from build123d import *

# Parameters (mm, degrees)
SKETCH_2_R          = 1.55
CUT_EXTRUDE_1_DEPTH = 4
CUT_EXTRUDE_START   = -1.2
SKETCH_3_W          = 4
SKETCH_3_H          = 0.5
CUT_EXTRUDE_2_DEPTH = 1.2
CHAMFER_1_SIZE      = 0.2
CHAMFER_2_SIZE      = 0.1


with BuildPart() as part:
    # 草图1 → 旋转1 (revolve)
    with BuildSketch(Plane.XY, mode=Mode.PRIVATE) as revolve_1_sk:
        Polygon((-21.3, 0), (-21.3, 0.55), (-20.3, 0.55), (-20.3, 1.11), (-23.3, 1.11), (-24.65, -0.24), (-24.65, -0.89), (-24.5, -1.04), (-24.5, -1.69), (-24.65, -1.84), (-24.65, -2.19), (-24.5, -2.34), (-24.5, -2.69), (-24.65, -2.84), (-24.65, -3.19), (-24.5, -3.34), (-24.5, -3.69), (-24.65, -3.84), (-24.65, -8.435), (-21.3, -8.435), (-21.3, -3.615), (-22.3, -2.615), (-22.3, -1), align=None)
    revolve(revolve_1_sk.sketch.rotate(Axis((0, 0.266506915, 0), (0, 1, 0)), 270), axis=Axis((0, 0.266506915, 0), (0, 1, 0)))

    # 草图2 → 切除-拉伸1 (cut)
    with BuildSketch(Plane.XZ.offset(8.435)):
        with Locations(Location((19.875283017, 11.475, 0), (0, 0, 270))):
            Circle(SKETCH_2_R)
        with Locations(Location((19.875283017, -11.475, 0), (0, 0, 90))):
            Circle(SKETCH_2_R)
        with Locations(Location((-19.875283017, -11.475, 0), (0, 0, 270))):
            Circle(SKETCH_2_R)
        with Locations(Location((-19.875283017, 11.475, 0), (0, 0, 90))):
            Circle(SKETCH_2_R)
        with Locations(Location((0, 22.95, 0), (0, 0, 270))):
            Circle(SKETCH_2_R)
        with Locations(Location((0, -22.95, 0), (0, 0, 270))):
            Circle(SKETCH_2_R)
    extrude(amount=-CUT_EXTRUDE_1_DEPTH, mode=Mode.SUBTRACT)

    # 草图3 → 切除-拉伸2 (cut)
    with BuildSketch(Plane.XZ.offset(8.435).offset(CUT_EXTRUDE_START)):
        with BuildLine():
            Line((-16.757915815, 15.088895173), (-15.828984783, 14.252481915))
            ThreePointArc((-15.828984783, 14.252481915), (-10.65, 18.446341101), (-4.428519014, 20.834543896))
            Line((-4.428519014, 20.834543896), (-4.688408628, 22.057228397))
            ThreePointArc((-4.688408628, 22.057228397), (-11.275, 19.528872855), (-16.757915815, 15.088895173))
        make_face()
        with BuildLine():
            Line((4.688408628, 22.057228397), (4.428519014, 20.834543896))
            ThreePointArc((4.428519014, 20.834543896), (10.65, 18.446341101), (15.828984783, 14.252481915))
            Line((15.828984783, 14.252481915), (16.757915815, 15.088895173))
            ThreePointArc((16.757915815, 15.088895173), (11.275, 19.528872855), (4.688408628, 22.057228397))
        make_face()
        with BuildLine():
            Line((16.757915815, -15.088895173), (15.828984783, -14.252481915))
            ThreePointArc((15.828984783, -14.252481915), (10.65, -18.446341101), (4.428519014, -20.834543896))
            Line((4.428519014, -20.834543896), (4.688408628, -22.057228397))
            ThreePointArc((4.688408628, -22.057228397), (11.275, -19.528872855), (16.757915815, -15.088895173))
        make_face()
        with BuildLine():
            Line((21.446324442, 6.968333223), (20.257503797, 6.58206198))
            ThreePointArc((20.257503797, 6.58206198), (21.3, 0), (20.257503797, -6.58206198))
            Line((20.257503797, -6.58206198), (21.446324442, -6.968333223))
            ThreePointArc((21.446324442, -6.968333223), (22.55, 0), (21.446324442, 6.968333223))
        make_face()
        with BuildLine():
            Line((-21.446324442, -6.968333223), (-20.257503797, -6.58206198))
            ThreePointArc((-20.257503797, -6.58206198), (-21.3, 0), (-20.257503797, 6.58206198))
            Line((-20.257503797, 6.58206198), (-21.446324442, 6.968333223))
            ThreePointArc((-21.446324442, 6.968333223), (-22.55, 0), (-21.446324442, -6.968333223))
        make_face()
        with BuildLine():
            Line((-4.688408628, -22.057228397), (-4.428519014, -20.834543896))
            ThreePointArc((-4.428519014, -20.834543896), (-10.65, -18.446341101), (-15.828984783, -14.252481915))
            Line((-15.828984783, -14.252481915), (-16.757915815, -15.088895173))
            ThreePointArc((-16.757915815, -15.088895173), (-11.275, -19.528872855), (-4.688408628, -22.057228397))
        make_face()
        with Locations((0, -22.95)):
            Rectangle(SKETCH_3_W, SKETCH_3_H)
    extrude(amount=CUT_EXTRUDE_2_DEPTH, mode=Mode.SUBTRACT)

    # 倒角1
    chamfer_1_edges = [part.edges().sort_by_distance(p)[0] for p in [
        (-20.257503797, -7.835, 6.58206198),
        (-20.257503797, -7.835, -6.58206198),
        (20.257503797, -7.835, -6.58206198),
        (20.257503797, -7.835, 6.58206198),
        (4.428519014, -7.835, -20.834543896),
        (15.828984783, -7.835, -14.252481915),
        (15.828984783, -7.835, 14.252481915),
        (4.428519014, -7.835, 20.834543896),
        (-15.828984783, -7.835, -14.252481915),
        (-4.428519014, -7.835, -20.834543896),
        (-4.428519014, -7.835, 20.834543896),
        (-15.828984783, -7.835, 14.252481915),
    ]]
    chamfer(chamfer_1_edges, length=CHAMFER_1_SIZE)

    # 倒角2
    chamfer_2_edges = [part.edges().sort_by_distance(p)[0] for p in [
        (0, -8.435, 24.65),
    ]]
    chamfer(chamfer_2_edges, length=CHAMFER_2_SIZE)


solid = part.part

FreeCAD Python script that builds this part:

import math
import FreeCAD as App
import Part
import Sketcher
Q = App.Units.Quantity


def edges_at(feature, points):
    """Names of the edges that pass closest to the given points."""
    edges = feature.Shape.Edges
    near = lambda p: min(range(len(edges)), key=lambda i: edges[i].distToShape(Part.Vertex(*p))[0])
    return sorted({f"Edge{near(p) + 1}" for p in points})


def add_polygon(sketch, points):
    """Adds a closed chain of lines whose ends are joined by coincident constraints."""
    first, n = sketch.GeometryCount, len(points)
    for a, b in zip(points, points[1:] + points[:1]):
        sketch.addGeometry(Part.LineSegment(App.Vector(*a, 0), App.Vector(*b, 0)), False)
    for i in range(n):
        sketch.addConstraint(Sketcher.Constraint("Coincident", first + i, 2, first + (i + 1) % n, 1))

doc = App.newDocument("Part")
body = doc.addObject("PartDesign::Body", "Body")

# Sketch on XY plane
sketch1 = doc.addObject("Sketcher::SketchObject", "Sketch")
body.addObject(sketch1)
sketch1.AttachmentSupport = (doc.XY_Plane, [""])
sketch1.MapMode = "FlatFace"
add_polygon(sketch1, [(-21.3, 0), (-21.3, 0.55), (-20.3, 0.55), (-20.3, 1.11), (-23.3, 1.11), (-24.65, -0.24), (-24.65, -0.89), (-24.5, -1.04), (-24.5, -1.69), (-24.65, -1.84), (-24.65, -2.19), (-24.5, -2.34), (-24.5, -2.69), (-24.65, -2.84), (-24.65, -3.19), (-24.5, -3.34), (-24.5, -3.69), (-24.65, -3.84), (-24.65, -8.435), (-21.3, -8.435), (-21.3, -3.615), (-22.3, -2.615), (-22.3, -1)])  # lines 0-22
sketch1.addConstraint(Sketcher.Constraint("Vertical", 0))
sketch1.addConstraint(Sketcher.Constraint("Horizontal", 1))
sketch1.addConstraint(Sketcher.Constraint("Vertical", 2))
sketch1.addConstraint(Sketcher.Constraint("Horizontal", 3))
sketch1.addConstraint(Sketcher.Constraint("Vertical", 5))
sketch1.addConstraint(Sketcher.Constraint("Vertical", 7))
sketch1.addConstraint(Sketcher.Constraint("Vertical", 9))
sketch1.addConstraint(Sketcher.Constraint("Vertical", 11))
sketch1.addConstraint(Sketcher.Constraint("Vertical", 13))
sketch1.addConstraint(Sketcher.Constraint("Vertical", 15))
sketch1.addConstraint(Sketcher.Constraint("Vertical", 17))
sketch1.addConstraint(Sketcher.Constraint("Horizontal", 18))
sketch1.addConstraint(Sketcher.Constraint("Vertical", 19))
sketch1.addConstraint(Sketcher.Constraint("Vertical", 21))
sketch1.addConstraint(Sketcher.Constraint("PointOnObject", 22, 2, -1))
sketch1.addConstraint(Sketcher.Constraint("Perpendicular", 4, 6))
sketch1.addConstraint(Sketcher.Constraint("Perpendicular", 6, 8))
sketch1.addConstraint(Sketcher.Constraint("Perpendicular", 8, 10))
sketch1.addConstraint(Sketcher.Constraint("Perpendicular", 10, 12))
sketch1.addConstraint(Sketcher.Constraint("Perpendicular", 12, 14))
sketch1.addConstraint(Sketcher.Constraint("Perpendicular", 14, 16))
sketch1.addConstraint(Sketcher.Constraint("Perpendicular", 16, 20))
sketch1.addConstraint(Sketcher.Constraint("Perpendicular", 20, 22))
sketch1.addConstraint(Sketcher.Constraint("Vertical", 5, 2, 8, 2))
sketch1.addConstraint(Sketcher.Constraint("Vertical", 7, 2, 10, 2))
sketch1.addConstraint(Sketcher.Constraint("Vertical", 9, 2, 12, 2))
sketch1.addConstraint(Sketcher.Constraint("Vertical", 11, 2, 14, 2))
sketch1.addConstraint(Sketcher.Constraint("Vertical", 13, 2, 16, 2))
sketch1.addConstraint(Sketcher.Constraint("Vertical", 0, 2, 18, 2))
sketch1.addConstraint(Sketcher.Constraint("Equal", 5, 7))
sketch1.addConstraint(Sketcher.Constraint("Equal", 9, 11))
sketch1.addConstraint(Sketcher.Constraint("Equal", 11, 13))
sketch1.addConstraint(Sketcher.Constraint("Equal", 13, 15))
sketch1.addConstraint(Sketcher.Constraint("Equal", 6, 8))
sketch1.addConstraint(Sketcher.Constraint("DistanceX", 1, 1, 1, 2, 1.0))
sketch1.addConstraint(Sketcher.Constraint("DistanceX", 3, 2, 3, 1, 3.0))
sketch1.addConstraint(Sketcher.Constraint("DistanceY", 21, 2, -1, 1, 1.0))
sketch1.addConstraint(Sketcher.Constraint("DistanceY", 5, 2, 3, 2, 2.0))
sketch1.addConstraint(Sketcher.Constraint("DistanceY", 11, 2, 7, 2, 1.0))
sketch1.addConstraint(Sketcher.Constraint("DistanceX", 18, 1, 18, 2, 3.35))
sketch1.addConstraint(Sketcher.Constraint("DistanceY", 0, 1, 0, 2, 0.55))
sketch1.addConstraint(Sketcher.Constraint("DistanceY", 2, 1, 2, 2, 0.56))
sketch1.addConstraint(Sketcher.Constraint("DistanceY", 9, 2, 9, 1, 0.35))
sketch1.addConstraint(Sketcher.Constraint("DistanceY", 19, 1, 19, 2, 4.82))
sketch1.addConstraint(Sketcher.Constraint("DistanceX", 0, 2, -1, 1, 21.3))
sketch1.addConstraint(Sketcher.Constraint("DistanceY", 17, 2, 17, 1, 4.595))
revolution = doc.addObject("PartDesign::Revolution", "Revolution")
body.addObject(revolution)
revolution.Profile = sketch1
revolution.ReferenceAxis = (sketch1, ["V_Axis"])
revolution.Angle = 360

# Sketch on XZ plane
sketch2 = doc.addObject("Sketcher::SketchObject", "Sketch001")
body.addObject(sketch2)
sketch2.AttachmentSupport = (doc.XZ_Plane, [""])
sketch2.MapMode = "FlatFace"
sketch2.AttachmentOffset = App.Placement(App.Vector(0, 0, 8.435), App.Rotation())
sketch2.addGeometry(Part.Circle(App.Vector(19.875283, 11.475, 0), App.Vector(0, 0, 1), 1.55), False)
sketch2.addGeometry(Part.Circle(App.Vector(19.875283, -11.475, 0), App.Vector(0, 0, 1), 1.55), False)
sketch2.addGeometry(Part.Circle(App.Vector(-19.875283, -11.475, 0), App.Vector(0, 0, 1), 1.55), False)
sketch2.addGeometry(Part.Circle(App.Vector(-19.875283, 11.475, 0), App.Vector(0, 0, 1), 1.55), False)
sketch2.addGeometry(Part.Circle(App.Vector(0, 22.95, 0), App.Vector(0, 0, 1), 1.55), False)
sketch2.addGeometry(Part.Circle(App.Vector(0, -22.95, 0), App.Vector(0, 0, 1), 1.55), False)
sketch2.addConstraint(Sketcher.Constraint("Equal", 0, 1))
sketch2.addConstraint(Sketcher.Constraint("Equal", 1, 2))
sketch2.addConstraint(Sketcher.Constraint("Equal", 2, 3))
sketch2.addConstraint(Sketcher.Constraint("Equal", 3, 4))
sketch2.addConstraint(Sketcher.Constraint("Equal", 4, 5))
sketch2.addConstraint(Sketcher.Constraint("Symmetric", 0, 3, 2, 3, -1, 1))
sketch2.addConstraint(Sketcher.Constraint("Symmetric", 1, 3, 3, 3, -1, 1))
sketch2.addConstraint(Sketcher.Constraint("Symmetric", 4, 3, 5, 3, -1, 1))
sketch2.addConstraint(Sketcher.Constraint("Symmetric", 1, 3, 2, 3, -2))
sketch2.addConstraint(Sketcher.Constraint("PointOnObject", 4, 3, -2))
sketch2.addConstraint(Sketcher.Constraint("Diameter", 0, 3.1))
sketch2.addConstraint(Sketcher.Constraint("DistanceY", 5, 3, 4, 3, 45.9))
sketch2.addConstraint(Sketcher.Constraint("DistanceY", 1, 3, 0, 3, 22.95))
sketch2.addConstraint(Sketcher.Constraint("DistanceX", -1, 1, 0, 3, 19.875283))
pocket1 = doc.addObject("PartDesign::Pocket", "Pocket")
body.addObject(pocket1)
pocket1.Profile = sketch2
pocket1.Length = 4

# Sketch on XZ plane
sketch3 = doc.addObject("Sketcher::SketchObject", "Sketch002")
body.addObject(sketch3)
sketch3.AttachmentSupport = (doc.XZ_Plane, [""])
sketch3.MapMode = "FlatFace"
sketch3.AttachmentOffset = App.Placement(App.Vector(0, 0, 7.235), App.Rotation())
sketch3.addGeometry(Part.LineSegment(App.Vector(-16.757916, 15.088895, 0), App.Vector(-15.828985, 14.252482, 0)), False)  # 0
sketch3.addGeometry(Part.ArcOfCircle(Part.Circle(App.Vector(0, 0, 0), App.Vector(0, 0, 1), 21.3), math.radians(102), math.radians(138)), False)  # 1
sketch3.addGeometry(Part.LineSegment(App.Vector(-4.428519, 20.834544, 0), App.Vector(-4.688409, 22.057228, 0)), False)  # 2
sketch3.addGeometry(Part.ArcOfCircle(Part.Circle(App.Vector(0, 0, 0), App.Vector(0, 0, 1), 22.55), math.radians(102), math.radians(138)), False)  # 3
sketch3.addGeometry(Part.LineSegment(App.Vector(4.688409, 22.057228, 0), App.Vector(4.428519, 20.834544, 0)), False)  # 4
sketch3.addGeometry(Part.ArcOfCircle(Part.Circle(App.Vector(0, 0, 0), App.Vector(0, 0, 1), 21.3), math.radians(42), math.radians(78)), False)  # 5
sketch3.addGeometry(Part.LineSegment(App.Vector(15.828985, 14.252482, 0), App.Vector(16.757916, 15.088895, 0)), False)  # 6
sketch3.addGeometry(Part.ArcOfCircle(Part.Circle(App.Vector(0, 0, 0), App.Vector(0, 0, 1), 22.55), math.radians(42), math.radians(78)), False)  # 7
sketch3.addGeometry(Part.LineSegment(App.Vector(16.757916, -15.088895, 0), App.Vector(15.828985, -14.252482, 0)), False)  # 8
sketch3.addGeometry(Part.ArcOfCircle(Part.Circle(App.Vector(0, 0, 0), App.Vector(0, 0, 1), 21.3), math.radians(-78), math.radians(-42)), False)  # 9
sketch3.addGeometry(Part.LineSegment(App.Vector(4.428519, -20.834544, 0), App.Vector(4.688409, -22.057228, 0)), False)  # 10
sketch3.addGeometry(Part.ArcOfCircle(Part.Circle(App.Vector(0, 0, 0), App.Vector(0, 0, 1), 22.55), math.radians(-78), math.radians(-42)), False)  # 11
sketch3.addGeometry(Part.LineSegment(App.Vector(21.446324, 6.968333, 0), App.Vector(20.257504, 6.582062, 0)), False)  # 12
sketch3.addGeometry(Part.ArcOfCircle(Part.Circle(App.Vector(0, 0, 0), App.Vector(0, 0, 1), 21.3), math.radians(-18), math.radians(18)), False)  # 13
sketch3.addGeometry(Part.LineSegment(App.Vector(20.257504, -6.582062, 0), App.Vector(21.446324, -6.968333, 0)), False)  # 14
sketch3.addGeometry(Part.ArcOfCircle(Part.Circle(App.Vector(0, 0, 0), App.Vector(0, 0, 1), 22.55), math.radians(-18), math.radians(18)), False)  # 15
sketch3.addGeometry(Part.LineSegment(App.Vector(-21.446324, -6.968333, 0), App.Vector(-20.257504, -6.582062, 0)), False)  # 16
sketch3.addGeometry(Part.ArcOfCircle(Part.Circle(App.Vector(0, 0, 0), App.Vector(0, 0, 1), 21.3), math.radians(162), math.radians(198)), False)  # 17
sketch3.addGeometry(Part.LineSegment(App.Vector(-20.257504, 6.582062, 0), App.Vector(-21.446324, 6.968333, 0)), False)  # 18
sketch3.addGeometry(Part.ArcOfCircle(Part.Circle(App.Vector(0, 0, 0), App.Vector(0, 0, 1), 22.55), math.radians(162), math.radians(198)), False)  # 19
sketch3.addGeometry(Part.LineSegment(App.Vector(-4.688409, -22.057228, 0), App.Vector(-4.428519, -20.834544, 0)), False)  # 20
sketch3.addGeometry(Part.ArcOfCircle(Part.Circle(App.Vector(0, 0, 0), App.Vector(0, 0, 1), 21.3), math.radians(-138), math.radians(-102)), False)  # 21
sketch3.addGeometry(Part.LineSegment(App.Vector(-15.828985, -14.252482, 0), App.Vector(-16.757916, -15.088895, 0)), False)  # 22
sketch3.addGeometry(Part.ArcOfCircle(Part.Circle(App.Vector(0, 0, 0), App.Vector(0, 0, 1), 22.55), math.radians(-138), math.radians(-102)), False)  # 23
add_polygon(sketch3, [(-2, -22.7), (-2, -23.2), (2, -23.2), (2, -22.7)])  # lines 24-27
sketch3.addConstraint(Sketcher.Constraint("Coincident", 0, 2, 1, 2))
sketch3.addConstraint(Sketcher.Constraint("Coincident", 1, 1, 2, 1))
sketch3.addConstraint(Sketcher.Constraint("Coincident", 2, 2, 3, 1))
sketch3.addConstraint(Sketcher.Constraint("Coincident", 3, 2, 0, 1))
sketch3.addConstraint(Sketcher.Constraint("Coincident", 4, 2, 5, 2))
sketch3.addConstraint(Sketcher.Constraint("Coincident", 5, 1, 6, 1))
sketch3.addConstraint(Sketcher.Constraint("Coincident", 6, 2, 7, 1))
sketch3.addConstraint(Sketcher.Constraint("Coincident", 7, 2, 4, 1))
sketch3.addConstraint(Sketcher.Constraint("Coincident", 8, 2, 9, 2))
sketch3.addConstraint(Sketcher.Constraint("Coincident", 9, 1, 10, 1))
sketch3.addConstraint(Sketcher.Constraint("Coincident", 10, 2, 11, 1))
sketch3.addConstraint(Sketcher.Constraint("Coincident", 11, 2, 8, 1))
sketch3.addConstraint(Sketcher.Constraint("Coincident", 12, 2, 13, 2))
sketch3.addConstraint(Sketcher.Constraint("Coincident", 13, 1, 14, 1))
sketch3.addConstraint(Sketcher.Constraint("Coincident", 14, 2, 15, 1))
sketch3.addConstraint(Sketcher.Constraint("Coincident", 15, 2, 12, 1))
sketch3.addConstraint(Sketcher.Constraint("Coincident", 16, 2, 17, 2))
sketch3.addConstraint(Sketcher.Constraint("Coincident", 17, 1, 18, 1))
sketch3.addConstraint(Sketcher.Constraint("Coincident", 18, 2, 19, 1))
sketch3.addConstraint(Sketcher.Constraint("Coincident", 19, 2, 16, 1))
sketch3.addConstraint(Sketcher.Constraint("Coincident", 20, 2, 21, 2))
sketch3.addConstraint(Sketcher.Constraint("Coincident", 21, 1, 22, 1))
sketch3.addConstraint(Sketcher.Constraint("Coincident", 22, 2, 23, 1))
sketch3.addConstraint(Sketcher.Constraint("Coincident", 23, 2, 20, 1))
sketch3.addConstraint(Sketcher.Constraint("Vertical", 24))
sketch3.addConstraint(Sketcher.Constraint("Horizontal", 25))
sketch3.addConstraint(Sketcher.Constraint("Vertical", 26))
sketch3.addConstraint(Sketcher.Constraint("Horizontal", 27))
sketch3.addConstraint(Sketcher.Constraint("Coincident", 1, 3, -1, 1))
sketch3.addConstraint(Sketcher.Constraint("Coincident", 3, 3, -1, 1))
sketch3.addConstraint(Sketcher.Constraint("Coincident", 5, 3, -1, 1))
sketch3.addConstraint(Sketcher.Constraint("Coincident", 7, 3, -1, 1))
sketch3.addConstraint(Sketcher.Constraint("Coincident", 9, 3, -1, 1))
sketch3.addConstraint(Sketcher.Constraint("Coincident", 11, 3, -1, 1))
sketch3.addConstraint(Sketcher.Constraint("Coincident", 13, 3, -1, 1))
sketch3.addConstraint(Sketcher.Constraint("Coincident", 15, 3, -1, 1))
sketch3.addConstraint(Sketcher.Constraint("Coincident", 17, 3, -1, 1))
sketch3.addConstraint(Sketcher.Constraint("Coincident", 19, 3, -1, 1))
sketch3.addConstraint(Sketcher.Constraint("Coincident", 21, 3, -1, 1))
sketch3.addConstraint(Sketcher.Constraint("Coincident", 23, 3, -1, 1))
sketch3.addConstraint(Sketcher.Constraint("Equal", 1, 5))
sketch3.addConstraint(Sketcher.Constraint("Equal", 3, 7))
sketch3.addConstraint(Sketcher.Constraint("Equal", 5, 9))
sketch3.addConstraint(Sketcher.Constraint("Equal", 7, 11))
sketch3.addConstraint(Sketcher.Constraint("Equal", 9, 13))
sketch3.addConstraint(Sketcher.Constraint("Equal", 11, 15))
sketch3.addConstraint(Sketcher.Constraint("Equal", 13, 17))
sketch3.addConstraint(Sketcher.Constraint("Equal", 15, 19))
sketch3.addConstraint(Sketcher.Constraint("Equal", 17, 21))
sketch3.addConstraint(Sketcher.Constraint("Equal", 19, 23))
sketch3.addConstraint(Sketcher.Constraint("Parallel", 0, 8))
sketch3.addConstraint(Sketcher.Constraint("Parallel", 2, 10))
sketch3.addConstraint(Sketcher.Constraint("Parallel", 12, 16))
sketch3.addConstraint(Sketcher.Constraint("Parallel", 14, 18))
sketch3.addConstraint(Sketcher.Constraint("Parallel", 4, 20))
sketch3.addConstraint(Sketcher.Constraint("Parallel", 6, 22))
sketch3.addConstraint(Sketcher.Constraint("Horizontal", 1, 1, 4, 2))
sketch3.addConstraint(Sketcher.Constraint("Horizontal", 0, 2, 5, 1))
sketch3.addConstraint(Sketcher.Constraint("Horizontal", 3, 2, 6, 2))
sketch3.addConstraint(Sketcher.Constraint("Horizontal", 2, 2, 7, 2))
sketch3.addConstraint(Sketcher.Constraint("Horizontal", 13, 1, 16, 2))
sketch3.addConstraint(Sketcher.Constraint("Horizontal", 12, 2, 17, 1))
sketch3.addConstraint(Sketcher.Constraint("Horizontal", 15, 2, 18, 2))
sketch3.addConstraint(Sketcher.Constraint("Horizontal", 9, 1, 20, 2))
sketch3.addConstraint(Sketcher.Constraint("Horizontal", 8, 2, 21, 1))
sketch3.addConstraint(Sketcher.Constraint("Vertical", 5, 1, 8, 2))
sketch3.addConstraint(Sketcher.Constraint("Vertical", 4, 2, 9, 1))
sketch3.addConstraint(Sketcher.Constraint("Vertical", 12, 2, 13, 1))
sketch3.addConstraint(Sketcher.Constraint("Radius", 1, 21.3))
sketch3.addConstraint(Sketcher.Constraint("DistanceX", 25, 1, 25, 2, 4.0))
sketch3.addConstraint(Sketcher.Constraint("Angle", 0, Q("-42 deg")))
sketch3.addConstraint(Sketcher.Constraint("Angle", 2, Q("102 deg")))
sketch3.addConstraint(Sketcher.Constraint("Angle", 12, Q("-162 deg")))
sketch3.addConstraint(Sketcher.Constraint("Radius", 3, 22.55))
sketch3.addConstraint(Sketcher.Constraint("DistanceY", 24, 2, 24, 1, 0.5))
sketch3.addConstraint(Sketcher.Constraint("DistanceX", 24, 2, -1, 1, 2.0))
sketch3.addConstraint(Sketcher.Constraint("DistanceY", 24, 2, -1, 1, 23.2))
sketch3.addConstraint(Sketcher.Constraint("DistanceY", -1, 1, 0, 2, 14.252482))
sketch3.addConstraint(Sketcher.Constraint("DistanceX", 1, 1, -1, 1, 4.428519))
sketch3.addConstraint(Sketcher.Constraint("DistanceY", -1, 1, 12, 2, 6.582062))
pocket2 = doc.addObject("PartDesign::Pocket", "Pocket001")
body.addObject(pocket2)
pocket2.Profile = sketch3
pocket2.Length = 1.2
pocket2.Reversed = True
doc.recompute()

chamfer = doc.addObject("PartDesign::Chamfer", "Chamfer")
body.addObject(chamfer)
chamfer.Base = (pocket2, edges_at(pocket2, [
    (-20.258, -7.835, 6.582),
    (-20.258, -7.835, -6.582),
    (20.258, -7.835, -6.582),
    (20.258, -7.835, 6.582),
    (4.429, -7.835, -20.835),
    (15.829, -7.835, -14.252),
    (15.829, -7.835, 14.252),
    (4.429, -7.835, 20.835),
    (-15.829, -7.835, -14.252),
    (-4.429, -7.835, -20.835),
    (-4.429, -7.835, 20.835),
    (-15.829, -7.835, 14.252),
]))
chamfer.Size = 0.2
doc.recompute()

chamfer2 = doc.addObject("PartDesign::Chamfer", "Chamfer001")
body.addObject(chamfer2)
chamfer2.Base = (chamfer, edges_at(chamfer, [(0, -8.435, 24.65)]))
chamfer2.Size = 0.1

doc.recompute()
